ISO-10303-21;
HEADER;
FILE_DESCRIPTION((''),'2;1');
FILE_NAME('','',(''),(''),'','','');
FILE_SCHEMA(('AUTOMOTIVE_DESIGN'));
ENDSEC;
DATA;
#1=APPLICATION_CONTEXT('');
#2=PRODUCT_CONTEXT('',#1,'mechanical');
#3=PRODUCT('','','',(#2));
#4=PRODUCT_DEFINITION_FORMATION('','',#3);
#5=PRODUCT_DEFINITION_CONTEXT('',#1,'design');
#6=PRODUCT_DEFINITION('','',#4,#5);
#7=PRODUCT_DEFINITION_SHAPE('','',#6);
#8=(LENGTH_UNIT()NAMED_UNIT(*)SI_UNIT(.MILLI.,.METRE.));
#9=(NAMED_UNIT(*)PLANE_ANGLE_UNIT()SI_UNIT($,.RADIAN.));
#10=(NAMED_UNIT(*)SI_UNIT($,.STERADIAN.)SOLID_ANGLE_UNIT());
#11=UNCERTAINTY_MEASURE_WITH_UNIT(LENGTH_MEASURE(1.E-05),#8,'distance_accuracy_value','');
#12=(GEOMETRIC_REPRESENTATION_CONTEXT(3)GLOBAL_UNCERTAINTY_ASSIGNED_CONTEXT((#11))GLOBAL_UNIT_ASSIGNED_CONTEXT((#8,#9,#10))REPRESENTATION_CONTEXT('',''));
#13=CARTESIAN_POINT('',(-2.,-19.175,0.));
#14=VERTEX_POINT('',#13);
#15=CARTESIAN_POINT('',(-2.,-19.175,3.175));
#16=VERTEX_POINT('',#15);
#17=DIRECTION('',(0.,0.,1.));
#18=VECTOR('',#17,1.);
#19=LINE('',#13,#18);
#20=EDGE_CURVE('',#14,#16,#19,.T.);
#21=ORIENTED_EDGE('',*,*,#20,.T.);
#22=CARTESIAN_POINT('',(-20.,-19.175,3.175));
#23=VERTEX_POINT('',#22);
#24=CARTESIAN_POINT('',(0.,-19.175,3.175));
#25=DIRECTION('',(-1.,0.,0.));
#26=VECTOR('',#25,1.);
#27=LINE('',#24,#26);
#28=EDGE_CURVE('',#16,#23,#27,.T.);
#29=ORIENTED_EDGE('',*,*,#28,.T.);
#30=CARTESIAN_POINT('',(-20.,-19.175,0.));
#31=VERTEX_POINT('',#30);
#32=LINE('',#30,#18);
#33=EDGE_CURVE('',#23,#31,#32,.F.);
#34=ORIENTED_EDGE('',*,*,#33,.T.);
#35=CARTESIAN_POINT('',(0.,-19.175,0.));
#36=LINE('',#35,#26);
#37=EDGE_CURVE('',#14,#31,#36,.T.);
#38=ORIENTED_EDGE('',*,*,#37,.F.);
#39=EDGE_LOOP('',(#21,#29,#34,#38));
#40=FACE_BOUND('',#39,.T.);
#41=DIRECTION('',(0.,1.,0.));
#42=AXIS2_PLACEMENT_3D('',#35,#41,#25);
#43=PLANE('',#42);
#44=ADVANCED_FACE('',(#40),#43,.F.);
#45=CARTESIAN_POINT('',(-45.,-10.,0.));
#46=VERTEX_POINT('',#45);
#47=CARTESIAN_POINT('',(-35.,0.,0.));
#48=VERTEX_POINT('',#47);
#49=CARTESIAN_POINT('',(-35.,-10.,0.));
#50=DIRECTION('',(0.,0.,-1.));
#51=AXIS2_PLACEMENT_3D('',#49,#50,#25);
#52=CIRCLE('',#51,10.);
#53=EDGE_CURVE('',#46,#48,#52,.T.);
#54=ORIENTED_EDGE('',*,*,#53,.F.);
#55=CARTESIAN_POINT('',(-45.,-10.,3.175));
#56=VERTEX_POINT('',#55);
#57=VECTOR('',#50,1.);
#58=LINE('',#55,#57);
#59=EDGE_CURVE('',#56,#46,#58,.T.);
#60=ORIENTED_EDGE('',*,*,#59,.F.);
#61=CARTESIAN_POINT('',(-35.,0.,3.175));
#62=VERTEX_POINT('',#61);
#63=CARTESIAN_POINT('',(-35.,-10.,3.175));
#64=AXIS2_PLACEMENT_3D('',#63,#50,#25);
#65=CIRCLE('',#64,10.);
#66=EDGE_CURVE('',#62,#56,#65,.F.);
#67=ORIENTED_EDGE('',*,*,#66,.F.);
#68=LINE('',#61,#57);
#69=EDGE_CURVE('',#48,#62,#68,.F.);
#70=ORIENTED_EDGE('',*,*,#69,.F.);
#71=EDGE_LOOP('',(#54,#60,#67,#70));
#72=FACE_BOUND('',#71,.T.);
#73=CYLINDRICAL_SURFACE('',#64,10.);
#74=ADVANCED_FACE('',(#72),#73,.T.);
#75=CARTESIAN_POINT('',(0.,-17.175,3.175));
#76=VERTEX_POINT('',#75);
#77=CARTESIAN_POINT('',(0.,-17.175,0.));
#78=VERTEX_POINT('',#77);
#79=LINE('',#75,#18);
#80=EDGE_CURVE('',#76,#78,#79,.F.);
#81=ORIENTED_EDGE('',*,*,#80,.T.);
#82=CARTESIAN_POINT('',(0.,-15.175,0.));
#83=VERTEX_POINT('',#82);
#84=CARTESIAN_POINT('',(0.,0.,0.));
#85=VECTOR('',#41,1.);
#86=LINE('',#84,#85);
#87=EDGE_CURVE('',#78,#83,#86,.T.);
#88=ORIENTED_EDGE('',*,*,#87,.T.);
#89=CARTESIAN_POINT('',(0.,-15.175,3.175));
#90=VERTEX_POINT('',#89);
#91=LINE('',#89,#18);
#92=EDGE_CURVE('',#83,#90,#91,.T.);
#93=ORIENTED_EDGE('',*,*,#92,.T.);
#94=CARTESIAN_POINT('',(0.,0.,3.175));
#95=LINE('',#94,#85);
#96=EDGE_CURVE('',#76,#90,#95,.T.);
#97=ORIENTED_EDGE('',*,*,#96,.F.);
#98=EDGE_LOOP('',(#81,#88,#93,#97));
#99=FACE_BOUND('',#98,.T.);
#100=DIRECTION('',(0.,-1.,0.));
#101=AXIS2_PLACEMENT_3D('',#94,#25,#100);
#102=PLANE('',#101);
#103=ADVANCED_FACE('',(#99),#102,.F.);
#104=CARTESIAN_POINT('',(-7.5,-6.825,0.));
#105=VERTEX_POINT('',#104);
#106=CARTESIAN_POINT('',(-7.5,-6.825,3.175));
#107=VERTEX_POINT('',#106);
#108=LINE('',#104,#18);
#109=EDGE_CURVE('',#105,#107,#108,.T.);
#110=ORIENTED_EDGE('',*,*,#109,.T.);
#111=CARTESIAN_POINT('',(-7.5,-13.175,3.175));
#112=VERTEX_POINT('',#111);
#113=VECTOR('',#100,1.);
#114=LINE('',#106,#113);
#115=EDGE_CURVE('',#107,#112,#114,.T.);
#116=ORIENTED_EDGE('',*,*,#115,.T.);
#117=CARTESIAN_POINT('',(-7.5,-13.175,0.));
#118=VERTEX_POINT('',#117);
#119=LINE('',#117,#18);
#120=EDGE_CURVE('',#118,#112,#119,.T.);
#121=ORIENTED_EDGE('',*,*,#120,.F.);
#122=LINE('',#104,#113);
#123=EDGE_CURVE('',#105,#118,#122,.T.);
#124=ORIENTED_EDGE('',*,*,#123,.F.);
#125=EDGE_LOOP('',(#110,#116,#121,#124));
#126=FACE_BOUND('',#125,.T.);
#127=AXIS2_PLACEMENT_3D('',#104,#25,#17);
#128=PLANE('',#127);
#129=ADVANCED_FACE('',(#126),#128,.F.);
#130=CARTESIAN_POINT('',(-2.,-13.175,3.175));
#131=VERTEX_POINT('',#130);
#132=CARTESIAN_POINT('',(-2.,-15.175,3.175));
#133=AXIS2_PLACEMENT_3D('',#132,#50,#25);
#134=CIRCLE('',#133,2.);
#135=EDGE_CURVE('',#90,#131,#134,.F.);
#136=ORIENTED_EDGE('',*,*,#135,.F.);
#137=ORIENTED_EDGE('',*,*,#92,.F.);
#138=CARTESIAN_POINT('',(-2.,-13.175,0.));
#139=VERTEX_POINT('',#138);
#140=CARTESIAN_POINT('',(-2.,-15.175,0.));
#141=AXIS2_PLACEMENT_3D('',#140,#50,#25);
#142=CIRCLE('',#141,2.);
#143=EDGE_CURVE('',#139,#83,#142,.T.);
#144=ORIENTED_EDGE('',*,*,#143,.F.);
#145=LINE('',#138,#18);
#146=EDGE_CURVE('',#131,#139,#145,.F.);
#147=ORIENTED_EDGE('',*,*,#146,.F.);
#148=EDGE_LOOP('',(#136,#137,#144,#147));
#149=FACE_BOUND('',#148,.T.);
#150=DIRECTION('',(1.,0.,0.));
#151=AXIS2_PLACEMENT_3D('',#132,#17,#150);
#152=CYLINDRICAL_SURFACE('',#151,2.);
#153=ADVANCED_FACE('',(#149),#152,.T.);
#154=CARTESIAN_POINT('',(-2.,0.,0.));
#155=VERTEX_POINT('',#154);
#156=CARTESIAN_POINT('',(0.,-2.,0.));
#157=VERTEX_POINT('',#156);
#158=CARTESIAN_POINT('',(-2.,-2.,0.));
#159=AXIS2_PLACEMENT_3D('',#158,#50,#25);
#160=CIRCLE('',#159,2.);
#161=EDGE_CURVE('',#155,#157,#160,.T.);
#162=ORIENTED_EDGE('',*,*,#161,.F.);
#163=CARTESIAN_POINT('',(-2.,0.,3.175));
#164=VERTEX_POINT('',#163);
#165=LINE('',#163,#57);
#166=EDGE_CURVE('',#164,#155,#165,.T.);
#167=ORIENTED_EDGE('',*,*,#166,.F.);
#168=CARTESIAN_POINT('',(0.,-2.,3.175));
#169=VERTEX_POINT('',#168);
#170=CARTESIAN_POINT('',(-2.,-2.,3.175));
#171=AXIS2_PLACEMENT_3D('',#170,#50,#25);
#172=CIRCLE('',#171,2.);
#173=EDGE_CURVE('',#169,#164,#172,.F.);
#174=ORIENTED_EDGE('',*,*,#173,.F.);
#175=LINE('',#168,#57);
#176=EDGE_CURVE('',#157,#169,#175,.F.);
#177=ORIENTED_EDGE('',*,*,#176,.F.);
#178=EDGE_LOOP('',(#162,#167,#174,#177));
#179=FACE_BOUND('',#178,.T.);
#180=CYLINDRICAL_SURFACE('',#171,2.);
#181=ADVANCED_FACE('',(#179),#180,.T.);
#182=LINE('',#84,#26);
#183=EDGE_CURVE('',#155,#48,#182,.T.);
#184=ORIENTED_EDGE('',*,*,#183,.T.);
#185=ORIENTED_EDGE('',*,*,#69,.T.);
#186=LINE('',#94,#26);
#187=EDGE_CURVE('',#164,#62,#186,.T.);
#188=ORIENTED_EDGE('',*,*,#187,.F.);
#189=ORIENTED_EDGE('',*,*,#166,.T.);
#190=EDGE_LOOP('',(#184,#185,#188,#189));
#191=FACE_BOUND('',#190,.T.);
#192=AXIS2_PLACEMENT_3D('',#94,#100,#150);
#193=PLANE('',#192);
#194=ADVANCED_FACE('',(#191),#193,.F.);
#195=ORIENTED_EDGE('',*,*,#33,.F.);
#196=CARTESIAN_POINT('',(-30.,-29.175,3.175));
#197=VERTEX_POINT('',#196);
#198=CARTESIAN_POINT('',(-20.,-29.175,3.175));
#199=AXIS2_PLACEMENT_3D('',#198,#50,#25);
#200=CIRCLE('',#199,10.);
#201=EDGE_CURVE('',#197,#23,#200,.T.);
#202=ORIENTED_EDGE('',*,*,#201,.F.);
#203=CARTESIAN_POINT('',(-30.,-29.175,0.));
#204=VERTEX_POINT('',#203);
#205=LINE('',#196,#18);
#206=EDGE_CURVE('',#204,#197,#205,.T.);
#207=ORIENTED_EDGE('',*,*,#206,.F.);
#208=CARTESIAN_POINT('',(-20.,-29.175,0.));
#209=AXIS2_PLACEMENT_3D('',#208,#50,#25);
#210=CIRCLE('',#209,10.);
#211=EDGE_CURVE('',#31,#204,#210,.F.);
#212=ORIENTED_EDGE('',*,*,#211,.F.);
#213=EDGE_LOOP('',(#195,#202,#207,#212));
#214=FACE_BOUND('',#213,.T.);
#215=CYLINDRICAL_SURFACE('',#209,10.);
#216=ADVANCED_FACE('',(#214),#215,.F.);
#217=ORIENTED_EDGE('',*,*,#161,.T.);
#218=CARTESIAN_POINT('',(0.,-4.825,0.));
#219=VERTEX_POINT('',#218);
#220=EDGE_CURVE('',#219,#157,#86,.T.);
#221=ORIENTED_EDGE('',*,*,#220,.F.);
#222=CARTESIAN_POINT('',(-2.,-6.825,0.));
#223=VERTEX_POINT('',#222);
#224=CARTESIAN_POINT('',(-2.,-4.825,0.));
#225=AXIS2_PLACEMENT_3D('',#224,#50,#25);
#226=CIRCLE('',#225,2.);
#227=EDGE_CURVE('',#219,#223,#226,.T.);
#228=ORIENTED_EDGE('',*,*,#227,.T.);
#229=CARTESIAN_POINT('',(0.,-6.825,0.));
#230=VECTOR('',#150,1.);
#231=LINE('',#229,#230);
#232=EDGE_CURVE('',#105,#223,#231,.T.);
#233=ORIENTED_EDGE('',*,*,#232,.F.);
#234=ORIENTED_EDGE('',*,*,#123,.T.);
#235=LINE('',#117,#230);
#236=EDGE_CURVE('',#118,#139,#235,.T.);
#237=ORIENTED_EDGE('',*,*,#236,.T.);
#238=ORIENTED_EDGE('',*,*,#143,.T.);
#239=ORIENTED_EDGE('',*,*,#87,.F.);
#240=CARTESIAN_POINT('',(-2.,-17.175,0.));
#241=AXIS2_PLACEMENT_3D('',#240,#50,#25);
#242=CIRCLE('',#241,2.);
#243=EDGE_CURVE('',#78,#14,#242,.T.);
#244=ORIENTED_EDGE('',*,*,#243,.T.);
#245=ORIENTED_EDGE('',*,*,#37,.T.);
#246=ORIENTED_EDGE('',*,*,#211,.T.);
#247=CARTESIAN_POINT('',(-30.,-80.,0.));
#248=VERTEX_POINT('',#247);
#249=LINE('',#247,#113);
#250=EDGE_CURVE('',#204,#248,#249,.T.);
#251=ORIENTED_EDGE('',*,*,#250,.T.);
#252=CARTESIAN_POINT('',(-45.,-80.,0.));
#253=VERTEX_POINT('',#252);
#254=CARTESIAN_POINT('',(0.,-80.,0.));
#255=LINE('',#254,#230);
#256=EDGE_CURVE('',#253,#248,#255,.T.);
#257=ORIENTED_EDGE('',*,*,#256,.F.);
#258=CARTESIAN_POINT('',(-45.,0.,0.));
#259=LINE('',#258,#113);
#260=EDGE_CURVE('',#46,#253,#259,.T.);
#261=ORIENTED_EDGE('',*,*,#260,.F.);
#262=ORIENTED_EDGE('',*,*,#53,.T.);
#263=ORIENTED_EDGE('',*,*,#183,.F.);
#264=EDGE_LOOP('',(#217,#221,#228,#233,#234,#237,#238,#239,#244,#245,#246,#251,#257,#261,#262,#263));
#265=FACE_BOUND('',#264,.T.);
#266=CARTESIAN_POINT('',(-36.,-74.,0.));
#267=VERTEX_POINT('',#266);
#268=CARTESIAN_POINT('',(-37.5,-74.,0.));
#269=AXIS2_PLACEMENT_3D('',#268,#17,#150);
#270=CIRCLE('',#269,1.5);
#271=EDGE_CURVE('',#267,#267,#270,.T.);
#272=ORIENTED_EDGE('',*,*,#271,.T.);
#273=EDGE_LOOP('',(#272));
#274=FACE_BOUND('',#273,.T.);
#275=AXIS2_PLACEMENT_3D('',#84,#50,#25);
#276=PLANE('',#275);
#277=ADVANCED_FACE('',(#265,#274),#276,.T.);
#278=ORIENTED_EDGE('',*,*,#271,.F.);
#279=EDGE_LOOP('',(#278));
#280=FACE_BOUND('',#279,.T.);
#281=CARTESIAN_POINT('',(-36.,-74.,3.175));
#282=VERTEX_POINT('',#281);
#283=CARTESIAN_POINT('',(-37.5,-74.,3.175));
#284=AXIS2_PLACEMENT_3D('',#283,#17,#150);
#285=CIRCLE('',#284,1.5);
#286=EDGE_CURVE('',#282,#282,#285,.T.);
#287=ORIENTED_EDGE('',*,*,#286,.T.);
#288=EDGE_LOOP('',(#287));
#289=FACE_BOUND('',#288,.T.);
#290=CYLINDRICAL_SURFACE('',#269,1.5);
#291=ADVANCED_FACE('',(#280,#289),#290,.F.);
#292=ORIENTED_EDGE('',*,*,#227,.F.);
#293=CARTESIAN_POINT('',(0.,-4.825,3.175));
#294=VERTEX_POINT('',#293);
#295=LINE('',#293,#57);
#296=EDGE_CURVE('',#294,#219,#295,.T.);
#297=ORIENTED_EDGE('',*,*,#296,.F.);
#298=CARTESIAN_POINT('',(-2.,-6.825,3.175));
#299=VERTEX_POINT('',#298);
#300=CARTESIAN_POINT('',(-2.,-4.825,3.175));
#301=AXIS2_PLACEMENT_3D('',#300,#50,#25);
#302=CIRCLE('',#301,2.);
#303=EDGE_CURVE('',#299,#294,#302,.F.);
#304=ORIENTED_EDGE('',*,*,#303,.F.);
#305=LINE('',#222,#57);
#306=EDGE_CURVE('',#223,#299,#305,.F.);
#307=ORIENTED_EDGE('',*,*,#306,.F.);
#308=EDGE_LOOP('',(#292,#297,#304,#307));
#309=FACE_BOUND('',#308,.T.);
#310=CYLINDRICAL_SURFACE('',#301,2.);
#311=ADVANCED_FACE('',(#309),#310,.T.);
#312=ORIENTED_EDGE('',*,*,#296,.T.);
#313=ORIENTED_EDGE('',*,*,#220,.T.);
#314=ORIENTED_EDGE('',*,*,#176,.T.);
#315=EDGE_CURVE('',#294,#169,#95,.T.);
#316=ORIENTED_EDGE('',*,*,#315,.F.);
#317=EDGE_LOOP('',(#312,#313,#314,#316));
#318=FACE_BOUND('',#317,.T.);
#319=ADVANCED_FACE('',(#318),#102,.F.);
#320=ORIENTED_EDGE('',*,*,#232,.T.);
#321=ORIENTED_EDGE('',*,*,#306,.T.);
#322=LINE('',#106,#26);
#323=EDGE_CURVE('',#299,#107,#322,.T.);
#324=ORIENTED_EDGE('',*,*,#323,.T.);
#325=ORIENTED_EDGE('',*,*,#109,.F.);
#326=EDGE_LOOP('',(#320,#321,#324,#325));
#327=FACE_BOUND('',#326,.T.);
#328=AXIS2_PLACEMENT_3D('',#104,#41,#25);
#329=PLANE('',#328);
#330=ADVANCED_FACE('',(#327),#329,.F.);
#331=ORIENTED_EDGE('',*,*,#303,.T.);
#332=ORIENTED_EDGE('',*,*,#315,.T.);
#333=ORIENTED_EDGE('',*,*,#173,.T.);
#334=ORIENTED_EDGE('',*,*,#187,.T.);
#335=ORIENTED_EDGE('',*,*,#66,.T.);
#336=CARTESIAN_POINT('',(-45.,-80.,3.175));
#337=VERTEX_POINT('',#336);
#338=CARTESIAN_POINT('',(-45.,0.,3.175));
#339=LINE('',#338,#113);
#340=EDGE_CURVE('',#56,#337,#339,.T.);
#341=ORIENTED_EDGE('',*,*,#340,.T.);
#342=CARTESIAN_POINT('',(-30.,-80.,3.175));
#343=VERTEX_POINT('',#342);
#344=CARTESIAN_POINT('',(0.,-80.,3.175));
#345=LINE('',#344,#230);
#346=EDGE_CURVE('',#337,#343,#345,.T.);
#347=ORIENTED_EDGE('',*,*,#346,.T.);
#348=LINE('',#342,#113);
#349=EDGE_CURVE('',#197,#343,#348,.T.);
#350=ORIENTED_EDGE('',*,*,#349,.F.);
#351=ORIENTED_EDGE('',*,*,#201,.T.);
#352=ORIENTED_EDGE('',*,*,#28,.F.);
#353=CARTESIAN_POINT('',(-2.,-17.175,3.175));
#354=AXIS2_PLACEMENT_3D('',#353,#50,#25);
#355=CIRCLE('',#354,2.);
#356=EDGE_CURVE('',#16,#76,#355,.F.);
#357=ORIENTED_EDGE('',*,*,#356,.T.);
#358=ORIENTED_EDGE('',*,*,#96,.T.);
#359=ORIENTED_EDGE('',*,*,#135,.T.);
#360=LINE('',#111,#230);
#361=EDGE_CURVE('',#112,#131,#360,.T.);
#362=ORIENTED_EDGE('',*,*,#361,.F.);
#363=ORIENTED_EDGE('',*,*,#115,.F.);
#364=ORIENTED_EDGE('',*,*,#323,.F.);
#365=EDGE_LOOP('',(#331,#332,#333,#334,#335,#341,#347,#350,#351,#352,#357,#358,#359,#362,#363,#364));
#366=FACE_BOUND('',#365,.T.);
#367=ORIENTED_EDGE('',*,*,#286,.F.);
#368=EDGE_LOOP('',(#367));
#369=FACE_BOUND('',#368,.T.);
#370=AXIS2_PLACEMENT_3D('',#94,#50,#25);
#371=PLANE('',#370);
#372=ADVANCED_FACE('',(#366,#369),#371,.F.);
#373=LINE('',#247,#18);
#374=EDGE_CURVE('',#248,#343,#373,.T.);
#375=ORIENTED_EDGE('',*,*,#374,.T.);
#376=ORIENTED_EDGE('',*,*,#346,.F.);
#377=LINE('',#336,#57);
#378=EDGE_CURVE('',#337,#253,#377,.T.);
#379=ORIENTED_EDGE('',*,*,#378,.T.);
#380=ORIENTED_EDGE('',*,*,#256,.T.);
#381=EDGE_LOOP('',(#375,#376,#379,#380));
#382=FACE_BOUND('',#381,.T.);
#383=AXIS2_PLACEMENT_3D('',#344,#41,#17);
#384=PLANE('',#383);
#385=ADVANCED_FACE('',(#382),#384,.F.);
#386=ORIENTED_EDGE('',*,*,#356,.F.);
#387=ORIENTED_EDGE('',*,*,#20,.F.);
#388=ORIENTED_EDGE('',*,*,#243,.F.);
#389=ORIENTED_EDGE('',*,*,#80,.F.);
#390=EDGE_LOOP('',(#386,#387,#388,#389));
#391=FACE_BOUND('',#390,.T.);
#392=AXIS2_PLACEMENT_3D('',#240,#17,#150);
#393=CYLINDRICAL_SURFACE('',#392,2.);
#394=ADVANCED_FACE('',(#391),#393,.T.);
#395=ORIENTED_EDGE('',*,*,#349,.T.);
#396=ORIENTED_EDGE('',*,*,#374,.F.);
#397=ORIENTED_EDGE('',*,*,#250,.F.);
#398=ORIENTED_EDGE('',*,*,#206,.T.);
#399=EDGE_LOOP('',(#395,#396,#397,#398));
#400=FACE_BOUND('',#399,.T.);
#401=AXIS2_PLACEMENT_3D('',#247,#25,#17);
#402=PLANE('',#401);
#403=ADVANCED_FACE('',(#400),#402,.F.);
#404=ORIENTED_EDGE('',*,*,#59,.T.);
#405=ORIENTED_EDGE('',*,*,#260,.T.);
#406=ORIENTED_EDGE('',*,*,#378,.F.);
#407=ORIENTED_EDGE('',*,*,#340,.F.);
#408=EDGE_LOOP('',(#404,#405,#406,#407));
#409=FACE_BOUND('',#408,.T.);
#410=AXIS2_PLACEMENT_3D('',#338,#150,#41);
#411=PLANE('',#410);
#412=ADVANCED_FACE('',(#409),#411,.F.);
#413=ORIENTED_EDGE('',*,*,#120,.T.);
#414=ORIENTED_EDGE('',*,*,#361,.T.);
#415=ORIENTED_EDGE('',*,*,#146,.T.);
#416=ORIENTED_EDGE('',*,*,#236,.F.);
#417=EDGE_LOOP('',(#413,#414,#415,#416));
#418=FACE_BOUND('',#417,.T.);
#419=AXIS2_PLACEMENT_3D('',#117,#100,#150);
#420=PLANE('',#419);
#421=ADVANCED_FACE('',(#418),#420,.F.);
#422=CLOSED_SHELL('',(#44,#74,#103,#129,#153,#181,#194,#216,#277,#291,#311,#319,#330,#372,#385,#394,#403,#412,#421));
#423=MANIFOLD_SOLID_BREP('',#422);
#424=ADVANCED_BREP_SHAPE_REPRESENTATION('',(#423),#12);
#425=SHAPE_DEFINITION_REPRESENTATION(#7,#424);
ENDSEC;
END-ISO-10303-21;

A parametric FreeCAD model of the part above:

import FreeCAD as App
import Part
import Sketcher
from FreeCAD import Vector


def edges_at(feature, points):
    """Names of the edges that pass closest to the given points."""
    edges = feature.Shape.Edges
    near = lambda p: min(range(len(edges)), key=lambda i: edges[i].distToShape(Part.Vertex(*p))[0])
    return sorted({f"Edge{near(p) + 1}" for p in points})

doc = App.newDocument("Part")
body = doc.addObject("PartDesign::Body", "Body")

# Sketch on XY plane
sketch1 = body.newObject("Sketcher::SketchObject", "Sketch")
sketch1.AttachmentSupport = (doc.getObject("XY_Plane"), [""])
sketch1.MapMode = "FlatFace"
sketch1.addGeometry(Part.LineSegment(Vector(-45, 0, 0), Vector(-45, -80, 0)), False)
sketch1.addGeometry(Part.LineSegment(Vector(-45, -80, 0), Vector(0, -80, 0)), False)
sketch1.addGeometry(Part.LineSegment(Vector(0, -80, 0), Vector(0, 0, 0)), False)
sketch1.addGeometry(Part.LineSegment(Vector(0, 0, 0), Vector(-45, 0, 0)), False)
sketch1.addConstraint(Sketcher.Constraint("Coincident", 0, 2, 1, 1))
sketch1.addConstraint(Sketcher.Constraint("Coincident", 1, 2, 2, 1))
sketch1.addConstraint(Sketcher.Constraint("Coincident", 2, 2, 3, 1))
sketch1.addConstraint(Sketcher.Constraint("Coincident", 3, 2, 0, 1))
sketch1.addConstraint(Sketcher.Constraint("Vertical", 0))
sketch1.addConstraint(Sketcher.Constraint("Horizontal", 1))
sketch1.addConstraint(Sketcher.Constraint("Vertical", 2))
sketch1.addConstraint(Sketcher.Constraint("Horizontal", 3))
sketch1.addConstraint(Sketcher.Constraint("Coincident", 2, 2, -1, 1))
sketch1.addConstraint(Sketcher.Constraint("DistanceX", 1, 1, 1, 2, 45.0))
sketch1.addConstraint(Sketcher.Constraint("DistanceY", 0, 2, 0, 1, 80.0))
pad1 = body.newObject("PartDesign::Pad", "Pad")
pad1.Profile = sketch1
pad1.Length = 3.175

# Sketch on XY plane
sketch2 = body.newObject("Sketcher::SketchObject", "Sketch001")
sketch2.AttachmentSupport = (doc.getObject("XY_Plane"), [""])
sketch2.MapMode = "FlatFace"
sketch2.AttachmentOffset = App.Placement(Vector(0, 0, 3.175), App.Rotation())
sketch2.addGeometry(Part.LineSegment(Vector(-8, -7, 0), Vector(-8, -13, 0)), False)
sketch2.addGeometry(Part.LineSegment(Vector(-8, -13, 0), Vector(8, -13, 0)), False)
sketch2.addGeometry(Part.LineSegment(Vector(8, -13, 0), Vector(8, -7, 0)), False)
sketch2.addGeometry(Part.LineSegment(Vector(8, -7, 0), Vector(-8, -7, 0)), False)
sketch2.addConstraint(Sketcher.Constraint("Coincident", 0, 2, 1, 1))
sketch2.addConstraint(Sketcher.Constraint("Coincident", 1, 2, 2, 1))
sketch2.addConstraint(Sketcher.Constraint("Coincident", 2, 2, 3, 1))
sketch2.addConstraint(Sketcher.Constraint("Coincident", 3, 2, 0, 1))
sketch2.addConstraint(Sketcher.Constraint("Vertical", 0))
sketch2.addConstraint(Sketcher.Constraint("Horizontal", 1))
sketch2.addConstraint(Sketcher.Constraint("Vertical", 2))
sketch2.addConstraint(Sketcher.Constraint("Horizontal", 3))
sketch2.addConstraint(Sketcher.Constraint("DistanceX", 1, 1, 1, 2, 15.0))
sketch2.addConstraint(Sketcher.Constraint("DistanceY", 0, 2, 0, 1, 6.35))
sketch2.addConstraint(Sketcher.Constraint("DistanceX", 0, 2, -1, 1, 7.5))
sketch2.addConstraint(Sketcher.Constraint("DistanceY", 0, 2, -1, 1, 13.175))
pocket1 = body.newObject("PartDesign::Pocket", "Pocket")
pocket1.Profile = sketch2
pocket1.Type = "ThroughAll"

# Sketch on XY plane
sketch3 = body.newObject("Sketcher::SketchObject", "Sketch002")
sketch3.AttachmentSupport = (doc.getObject("XY_Plane"), [""])
sketch3.MapMode = "FlatFace"
sketch3.AttachmentOffset = App.Placement(Vector(0, 0, 3.175), App.Rotation())
sketch3.addGeometry(Part.Circle(Vector(-37.5, -74, 0), Vector(0, 0, 1), 1.5), False)
sketch3.addGeometry(Part.LineSegment(Vector(-30, -19.2, 0), Vector(-30, -80, 0)), False)
sketch3.addGeometry(Part.LineSegment(Vector(-30, -80, 0), Vector(0, -80, 0)), False)
sketch3.addGeometry(Part.LineSegment(Vector(0, -80, 0), Vector(0, -19.2, 0)), False)
sketch3.addGeometry(Part.LineSegment(Vector(0, -19.2, 0), Vector(-30, -19.2, 0)), False)
sketch3.addConstraint(Sketcher.Constraint("Coincident", 1, 2, 2, 1))
sketch3.addConstraint(Sketcher.Constraint("Coincident", 2, 2, 3, 1))
sketch3.addConstraint(Sketcher.Constraint("Coincident", 3, 2, 4, 1))
sketch3.addConstraint(Sketcher.Constraint("Coincident", 4, 2, 1, 1))
sketch3.addConstraint(Sketcher.Constraint("Vertical", 1))
sketch3.addConstraint(Sketcher.Constraint("Horizontal", 2))
sketch3.addConstraint(Sketcher.Constraint("Vertical", 3))
sketch3.addConstraint(Sketcher.Constraint("Horizontal", 4))
sketch3.addConstraint(Sketcher.Constraint("PointOnObject", 2, 2, -2))
sketch3.addConstraint(Sketcher.Constraint("Diameter", 0, 3.0))
sketch3.addConstraint(Sketcher.Constraint("DistanceX", 2, 1, 2, 2, 30.0))
sketch3.addConstraint(Sketcher.Constraint("DistanceY", 0, 3, -1, 1, 74.0))
sketch3.addConstraint(Sketcher.Constraint("DistanceY", 1, 2, -1, 1, 80.0))
sketch3.addConstraint(Sketcher.Constraint("DistanceX", 0, 3, -1, 1, 37.5))
sketch3.addConstraint(Sketcher.Constraint("DistanceY", 1, 2, 1, 1, 60.825))
pocket2 = body.newObject("PartDesign::Pocket", "Pocket001")
pocket2.Profile = sketch3
pocket2.Type = "ThroughAll"
doc.recompute()

fillet = body.newObject("PartDesign::Fillet", "Fillet")
fillet.Base = (pocket2, edges_at(pocket2, [(-30, -19.175, 1.587), (-45, 0, 1.587)]))
fillet.Radius = 10
doc.recompute()

fillet2 = body.newObject("PartDesign::Fillet", "Fillet001")
fillet2.Base = (fillet, edges_at(fillet, [
    (0, -13.175, 1.587),
    (0, -6.825, 1.587),
    (0, -19.175, 1.587),
    (0, 0, 1.587),
]))
fillet2.Radius = 2

doc.recompute()
